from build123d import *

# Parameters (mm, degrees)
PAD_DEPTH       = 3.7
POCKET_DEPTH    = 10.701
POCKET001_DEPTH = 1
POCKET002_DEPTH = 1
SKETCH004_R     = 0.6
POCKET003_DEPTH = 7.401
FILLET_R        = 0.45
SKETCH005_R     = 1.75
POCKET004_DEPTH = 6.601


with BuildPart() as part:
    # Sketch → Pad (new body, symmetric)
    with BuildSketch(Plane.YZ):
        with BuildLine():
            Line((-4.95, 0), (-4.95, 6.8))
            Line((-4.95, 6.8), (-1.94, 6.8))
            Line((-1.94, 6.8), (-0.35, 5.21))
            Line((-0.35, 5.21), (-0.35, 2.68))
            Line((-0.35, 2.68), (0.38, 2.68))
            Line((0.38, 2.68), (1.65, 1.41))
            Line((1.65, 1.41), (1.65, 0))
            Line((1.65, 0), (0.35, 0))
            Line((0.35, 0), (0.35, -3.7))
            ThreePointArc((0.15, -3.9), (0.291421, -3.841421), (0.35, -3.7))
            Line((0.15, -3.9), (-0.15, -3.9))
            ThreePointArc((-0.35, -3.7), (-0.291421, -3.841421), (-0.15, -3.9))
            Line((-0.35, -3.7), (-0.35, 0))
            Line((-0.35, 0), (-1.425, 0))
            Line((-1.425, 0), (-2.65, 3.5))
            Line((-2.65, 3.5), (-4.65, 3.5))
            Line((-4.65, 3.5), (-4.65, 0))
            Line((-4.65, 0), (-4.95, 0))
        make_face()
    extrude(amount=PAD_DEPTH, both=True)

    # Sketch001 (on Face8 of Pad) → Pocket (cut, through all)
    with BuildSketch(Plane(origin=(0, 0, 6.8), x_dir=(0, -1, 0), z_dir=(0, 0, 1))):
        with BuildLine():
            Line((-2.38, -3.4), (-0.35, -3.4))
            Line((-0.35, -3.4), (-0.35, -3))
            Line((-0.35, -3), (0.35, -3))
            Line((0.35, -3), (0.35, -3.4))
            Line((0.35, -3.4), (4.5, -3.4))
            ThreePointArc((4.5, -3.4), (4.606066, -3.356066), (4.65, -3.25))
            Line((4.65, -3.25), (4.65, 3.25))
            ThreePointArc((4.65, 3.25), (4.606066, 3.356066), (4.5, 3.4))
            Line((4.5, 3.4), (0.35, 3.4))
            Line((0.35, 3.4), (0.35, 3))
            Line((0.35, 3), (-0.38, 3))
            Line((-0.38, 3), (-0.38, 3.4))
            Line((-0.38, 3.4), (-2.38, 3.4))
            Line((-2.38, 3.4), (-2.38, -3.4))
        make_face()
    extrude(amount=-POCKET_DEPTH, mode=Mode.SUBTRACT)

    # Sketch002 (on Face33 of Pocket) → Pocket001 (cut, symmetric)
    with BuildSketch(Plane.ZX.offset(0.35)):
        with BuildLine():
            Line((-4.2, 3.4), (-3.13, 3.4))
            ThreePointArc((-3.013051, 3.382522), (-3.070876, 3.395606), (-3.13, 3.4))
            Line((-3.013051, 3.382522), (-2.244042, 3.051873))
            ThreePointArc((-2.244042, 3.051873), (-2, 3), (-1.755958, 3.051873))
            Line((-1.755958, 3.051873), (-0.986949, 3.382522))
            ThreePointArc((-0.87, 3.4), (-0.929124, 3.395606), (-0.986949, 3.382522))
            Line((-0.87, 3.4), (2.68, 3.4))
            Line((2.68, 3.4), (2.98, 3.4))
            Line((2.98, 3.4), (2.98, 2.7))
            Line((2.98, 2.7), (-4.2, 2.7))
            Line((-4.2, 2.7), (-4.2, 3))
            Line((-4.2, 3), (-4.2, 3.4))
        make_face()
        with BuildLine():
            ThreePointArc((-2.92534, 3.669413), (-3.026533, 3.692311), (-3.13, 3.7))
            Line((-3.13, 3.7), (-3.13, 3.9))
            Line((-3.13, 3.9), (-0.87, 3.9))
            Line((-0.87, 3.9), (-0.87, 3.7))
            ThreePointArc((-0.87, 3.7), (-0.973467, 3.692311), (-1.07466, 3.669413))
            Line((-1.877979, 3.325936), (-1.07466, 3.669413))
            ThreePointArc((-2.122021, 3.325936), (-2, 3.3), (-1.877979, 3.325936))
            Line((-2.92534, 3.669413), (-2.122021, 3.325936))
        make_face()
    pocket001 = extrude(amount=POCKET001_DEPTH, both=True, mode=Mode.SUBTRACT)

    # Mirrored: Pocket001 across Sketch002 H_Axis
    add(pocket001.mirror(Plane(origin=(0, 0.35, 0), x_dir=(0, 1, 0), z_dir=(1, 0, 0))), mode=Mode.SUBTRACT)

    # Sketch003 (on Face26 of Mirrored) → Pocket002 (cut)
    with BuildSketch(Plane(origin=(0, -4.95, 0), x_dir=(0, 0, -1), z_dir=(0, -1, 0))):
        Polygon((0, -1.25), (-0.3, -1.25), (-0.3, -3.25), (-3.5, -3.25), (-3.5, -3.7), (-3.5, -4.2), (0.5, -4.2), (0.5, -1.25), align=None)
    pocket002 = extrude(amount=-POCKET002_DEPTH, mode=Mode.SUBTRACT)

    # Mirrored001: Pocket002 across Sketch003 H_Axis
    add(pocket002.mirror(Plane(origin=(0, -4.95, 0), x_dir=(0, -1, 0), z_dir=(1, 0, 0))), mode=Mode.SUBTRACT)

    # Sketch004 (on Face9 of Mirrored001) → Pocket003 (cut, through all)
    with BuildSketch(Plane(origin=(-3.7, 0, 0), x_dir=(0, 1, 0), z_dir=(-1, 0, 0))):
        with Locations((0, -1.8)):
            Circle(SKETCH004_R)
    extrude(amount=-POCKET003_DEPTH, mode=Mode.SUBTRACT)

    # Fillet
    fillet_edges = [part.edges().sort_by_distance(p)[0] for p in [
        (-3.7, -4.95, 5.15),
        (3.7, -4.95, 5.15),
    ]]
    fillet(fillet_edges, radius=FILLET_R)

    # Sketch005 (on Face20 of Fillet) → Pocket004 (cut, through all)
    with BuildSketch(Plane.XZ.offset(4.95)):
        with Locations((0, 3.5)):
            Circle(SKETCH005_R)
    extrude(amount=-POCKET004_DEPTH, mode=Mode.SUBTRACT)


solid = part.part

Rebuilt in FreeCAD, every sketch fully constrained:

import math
import FreeCAD as App
import Part
import Sketcher
Q = App.Units.Quantity


def edges_at(feature, points):
    """Names of the edges that pass closest to the given points."""
    edges = feature.Shape.Edges
    near = lambda p: min(range(len(edges)), key=lambda i: edges[i].distToShape(Part.Vertex(*p))[0])
    return sorted({f"Edge{near(p) + 1}" for p in points})


def add_polygon(sketch, points):
    """Adds a closed chain of lines whose ends are joined by coincident constraints."""
    first, n = sketch.GeometryCount, len(points)
    for a, b in zip(points, points[1:] + points[:1]):
        sketch.addGeometry(Part.LineSegment(App.Vector(*a, 0), App.Vector(*b, 0)), False)
    for i in range(n):
        sketch.addConstraint(Sketcher.Constraint("Coincident", first + i, 2, first + (i + 1) % n, 1))

doc = App.newDocument("Part")
body = doc.addObject("PartDesign::Body", "Body")

# Sketch on YZ plane
sketch1 = doc.addObject("Sketcher::SketchObject", "Sketch")
body.addObject(sketch1)
sketch1.AttachmentSupport = (doc.YZ_Plane, [""])
sketch1.MapMode = "FlatFace"
sketch1.addGeometry([
    Part.LineSegment(App.Vector(-4.95, 6.8, 0), App.Vector(-4.95, 0, 0)),  # 0
    Part.LineSegment(App.Vector(-4.95, 0, 0), App.Vector(-4.65, 0, 0)),  # 1
    Part.LineSegment(App.Vector(-4.65, 0, 0), App.Vector(-4.65, 3.5, 0)),  # 2
    Part.LineSegment(App.Vector(-4.65, 3.5, 0), App.Vector(-2.65, 3.5, 0)),  # 3
    Part.LineSegment(App.Vector(-2.65, 3.5, 0), App.Vector(-1.425, 0, 0)),  # 4
    Part.LineSegment(App.Vector(-1.425, 0, 0), App.Vector(-0.35, 0, 0)),  # 5
    Part.LineSegment(App.Vector(-0.35, 0, 0), App.Vector(-0.35, -3.7, 0)),  # 6
    Part.ArcOfCircle(Part.Circle(App.Vector(-0.149999, -3.699999, 0), App.Vector(0, 0, 1), 0.200001), math.radians(-179.999652), math.radians(-90.000348)),  # 7
    Part.LineSegment(App.Vector(-0.15, -3.9, 0), App.Vector(0.15, -3.9, 0)),  # 8
    Part.ArcOfCircle(Part.Circle(App.Vector(0.149999, -3.699999, 0), App.Vector(0, 0, 1), 0.200001), math.radians(-89.999652), math.radians(-0.000348)),  # 9
    Part.LineSegment(App.Vector(0.35, -3.7, 0), App.Vector(0.35, 0, 0)),  # 10
    Part.LineSegment(App.Vector(0.35, 0, 0), App.Vector(1.65, 0, 0)),  # 11
    Part.LineSegment(App.Vector(1.65, 0, 0), App.Vector(1.65, 1.41, 0)),  # 12
    Part.LineSegment(App.Vector(1.65, 1.41, 0), App.Vector(0.38, 2.68, 0)),  # 13
    Part.LineSegment(App.Vector(0.38, 2.68, 0), App.Vector(-0.35, 2.68, 0)),  # 14
    Part.LineSegment(App.Vector(-0.35, 2.68, 0), App.Vector(-0.35, 5.21, 0)),  # 15
    Part.LineSegment(App.Vector(-0.35, 5.21, 0), App.Vector(-1.94, 6.8, 0)),  # 16
    Part.LineSegment(App.Vector(-1.94, 6.8, 0), App.Vector(-4.95, 6.8, 0)),  # 17
], False)
sketch1.addConstraint([
    Sketcher.Constraint("Coincident", 0, 2, 1, 1),
    Sketcher.Constraint("Coincident", 1, 2, 2, 1),
    Sketcher.Constraint("Coincident", 2, 2, 3, 1),
    Sketcher.Constraint("Coincident", 3, 2, 4, 1),
    Sketcher.Constraint("Coincident", 4, 2, 5, 1),
    Sketcher.Constraint("Coincident", 5, 2, 6, 1),
    Sketcher.Constraint("Coincident", 6, 2, 7, 1),
    Sketcher.Constraint("Coincident", 7, 2, 8, 1),
    Sketcher.Constraint("Coincident", 8, 2, 9, 1),
    Sketcher.Constraint("Coincident", 9, 2, 10, 1),
    Sketcher.Constraint("Coincident", 10, 2, 11, 1),
    Sketcher.Constraint("Coincident", 11, 2, 12, 1),
    Sketcher.Constraint("Coincident", 12, 2, 13, 1),
    Sketcher.Constraint("Coincident", 13, 2, 14, 1),
    Sketcher.Constraint("Coincident", 14, 2, 15, 1),
    Sketcher.Constraint("Coincident", 15, 2, 16, 1),
    Sketcher.Constraint("Coincident", 16, 2, 17, 1),
    Sketcher.Constraint("Coincident", 17, 2, 0, 1),
    Sketcher.Constraint("Vertical", 0),
    Sketcher.Constraint("Horizontal", 1),
    Sketcher.Constraint("Vertical", 2),
    Sketcher.Constraint("Horizontal", 3),
    Sketcher.Constraint("Horizontal", 5),
    Sketcher.Constraint("Vertical", 6),
    Sketcher.Constraint("Horizontal", 8),
    Sketcher.Constraint("Vertical", 10),
    Sketcher.Constraint("Horizontal", 11),
    Sketcher.Constraint("Vertical", 12),
    Sketcher.Constraint("Horizontal", 14),
    Sketcher.Constraint("Vertical", 15),
    Sketcher.Constraint("Horizontal", 17),
    Sketcher.Constraint("Equal", 7, 9),
    Sketcher.Constraint("Symmetric", 5, 2, 10, 2, -1, 1),
    Sketcher.Constraint("PointOnObject", 0, 2, -1),
    Sketcher.Constraint("PointOnObject", 4, 2, -1),
    Sketcher.Constraint("Parallel", 13, 16),
    Sketcher.Constraint("Horizontal", 9, 3, 6, 2),
    Sketcher.Constraint("Horizontal", 6, 2, 9, 2),
    Sketcher.Constraint("Vertical", 9, 3, 8, 2),
    Sketcher.Constraint("Vertical", 6, 2, 14, 2),
    Sketcher.Constraint("Equal", 1, 8),
    Sketcher.Constraint("Radius", 7, 0.200001),
    Sketcher.Constraint("DistanceX", 3, 1, 3, 2, 2.0),
    Sketcher.Constraint("Angle", 13, Q("135 deg")),
    Sketcher.Constraint("DistanceX", 1, 1, 1, 2, 0.3),
    Sketcher.Constraint("DistanceX", 11, 1, 11, 2, 1.3),
    Sketcher.Constraint("DistanceY", 0, 2, 0, 1, 6.8),
    Sketcher.Constraint("DistanceY", 2, 1, 2, 2, 3.5),
    Sketcher.Constraint("DistanceY", 6, 2, 6, 1, 3.7),
    Sketcher.Constraint("DistanceX", 5, 2, 11, 2, 2.0),
    Sketcher.Constraint("DistanceX", 14, 2, 14, 1, 0.73),
    Sketcher.Constraint("DistanceX", 17, 2, 17, 1, 3.01),
    Sketcher.Constraint("DistanceY", 12, 1, 12, 2, 1.41),
    Sketcher.Constraint("DistanceY", 15, 1, 15, 2, 2.53),
    Sketcher.Constraint("DistanceX", 5, 1, 5, 2, 1.075),
])
pad1 = doc.addObject("PartDesign::Pad", "Pad")
body.addObject(pad1)
pad1.Profile = sketch1
pad1.Length = 7.4
pad1.Midplane = True

# Sketch on XY plane
sketch2 = doc.addObject("Sketcher::SketchObject", "Sketch001")
body.addObject(sketch2)
sketch2.AttachmentSupport = (doc.XY_Plane, [""])
sketch2.MapMode = "FlatFace"
sketch2.AttachmentOffset = App.Placement(App.Vector(0, 0, 6.8), App.Rotation())
sketch2.addGeometry([
    Part.LineSegment(App.Vector(-3.4, 2.38, 0), App.Vector(-3.4, 0.35, 0)),  # 0
    Part.LineSegment(App.Vector(-3.4, 0.35, 0), App.Vector(-3, 0.35, 0)),  # 1
    Part.LineSegment(App.Vector(-3, 0.35, 0), App.Vector(-3, -0.35, 0)),  # 2
    Part.LineSegment(App.Vector(-3, -0.35, 0), App.Vector(-3.4, -0.35, 0)),  # 3
    Part.LineSegment(App.Vector(-3.4, -0.35, 0), App.Vector(-3.4, -4.5, 0)),  # 4
    Part.ArcOfCircle(Part.Circle(App.Vector(-3.25, -4.5, 0), App.Vector(0, 0, 1), 0.15), math.radians(-179.999977), math.radians(-90.000023)),  # 5
    Part.LineSegment(App.Vector(-3.25, -4.65, 0), App.Vector(3.25, -4.65, 0)),  # 6
    Part.ArcOfCircle(Part.Circle(App.Vector(3.25, -4.5, 0), App.Vector(0, 0, 1), 0.15), math.radians(-89.999977), math.radians(-0.000023)),  # 7
    Part.LineSegment(App.Vector(3.4, -4.5, 0), App.Vector(3.4, -0.35, 0)),  # 8
    Part.LineSegment(App.Vector(3.4, -0.35, 0), App.Vector(3, -0.35, 0)),  # 9
    Part.LineSegment(App.Vector(3, -0.35, 0), App.Vector(3, 0.38, 0)),  # 10
    Part.LineSegment(App.Vector(3, 0.38, 0), App.Vector(3.4, 0.38, 0)),  # 11
    Part.LineSegment(App.Vector(3.4, 0.38, 0), App.Vector(3.4, 2.38, 0)),  # 12
    Part.LineSegment(App.Vector(3.4, 2.38, 0), App.Vector(-3.4, 2.38, 0)),  # 13
], False)
sketch2.addConstraint([
    Sketcher.Constraint("Coincident", 0, 2, 1, 1),
    Sketcher.Constraint("Coincident", 1, 2, 2, 1),
    Sketcher.Constraint("Coincident", 2, 2, 3, 1),
    Sketcher.Constraint("Coincident", 3, 2, 4, 1),
    Sketcher.Constraint("Tangent", 4, 2, 5, 1),
    Sketcher.Constraint("Tangent", 5, 2, 6, 1),
    Sketcher.Constraint("Tangent", 6, 2, 7, 1),
    Sketcher.Constraint("Tangent", 7, 2, 8, 1),
    Sketcher.Constraint("Coincident", 8, 2, 9, 1),
    Sketcher.Constraint("Coincident", 9, 2, 10, 1),
    Sketcher.Constraint("Coincident", 10, 2, 11, 1),
    Sketcher.Constraint("Coincident", 11, 2, 12, 1),
    Sketcher.Constraint("Coincident", 12, 2, 13, 1),
    Sketcher.Constraint("Coincident", 13, 2, 0, 1),
    Sketcher.Constraint("Vertical", 0),
    Sketcher.Constraint("Horizontal", 1),
    Sketcher.Constraint("Vertical", 2),
    Sketcher.Constraint("Horizontal", 3),
    Sketcher.Constraint("Vertical", 4),
    Sketcher.Constraint("Horizontal", 6),
    Sketcher.Constraint("Vertical", 8),
    Sketcher.Constraint("Horizontal", 9),
    Sketcher.Constraint("Vertical", 10),
    Sketcher.Constraint("Horizontal", 11),
    Sketcher.Constraint("Vertical", 12),
    Sketcher.Constraint("Horizontal", 13),
    Sketcher.Constraint("Equal", 5, 7),
    Sketcher.Constraint("Symmetric", 0, 2, 8, 2, -1, 1),
    Sketcher.Constraint("Symmetric", 3, 2, 8, 2, -2),
    Sketcher.Constraint("Vertical", 8, 2, 11, 2),
    Sketcher.Constraint("Equal", 3, 9),
    Sketcher.Constraint("DistanceY", 12, 1, 12, 2, 2.0),
    Sketcher.Constraint("Radius", 5, 0.15),
    Sketcher.Constraint("DistanceX", 1, 1, 1, 2, 0.4),
    Sketcher.Constraint("DistanceX", 6, 1, 6, 2, 6.5),
    Sketcher.Constraint("DistanceY", 2, 2, 2, 1, 0.7),
    Sketcher.Constraint("DistanceY", 5, 2, 0, 2, 5.0),
    Sketcher.Constraint("DistanceY", 0, 2, 0, 1, 2.03),
])
pocket1 = doc.addObject("PartDesign::Pocket", "Pocket")
body.addObject(pocket1)
pocket1.Profile = sketch2
pocket1.Type = "ThroughAll"

# Sketch on XZ plane
sketch3 = doc.addObject("Sketcher::SketchObject", "Sketch002")
body.addObject(sketch3)
sketch3.AttachmentSupport = (doc.XZ_Plane, [""])
sketch3.MapMode = "FlatFace"
sketch3.AttachmentOffset = App.Placement(App.Vector(0, 0, -0.35), App.Rotation())
sketch3.addGeometry([
    Part.LineSegment(App.Vector(3.4, -3.13, 0), App.Vector(3.4, -4.2, 0)),  # 0
    Part.LineSegment(App.Vector(3.4, -4.2, 0), App.Vector(2.7, -4.2, 0)),  # 1
    Part.LineSegment(App.Vector(2.7, -4.2, 0), App.Vector(2.7, 2.98, 0)),  # 2
    Part.LineSegment(App.Vector(2.7, 2.98, 0), App.Vector(3.4, 2.98, 0)),  # 3
    Part.LineSegment(App.Vector(3.4, 2.98, 0), App.Vector(3.4, -0.87, 0)),  # 4
    Part.ArcOfCircle(Part.Circle(App.Vector(2.999964, -0.869995, 0), App.Vector(0, 0, 1), 0.400036), math.radians(-16.999179), math.radians(-0.000681)),  # 5
    Part.LineSegment(App.Vector(3.382522, -0.986949, 0), App.Vector(3.051873, -1.755958, 0)),  # 6
    Part.ArcOfCircle(Part.Circle(App.Vector(3.599997, -2, 0), App.Vector(0, 0, 1), 0.599997), math.radians(155.999878), math.radians(204.000122)),  # 7
    Part.LineSegment(App.Vector(3.051873, -2.244042, 0), App.Vector(3.382522, -3.013051, 0)),  # 8
    Part.ArcOfCircle(Part.Circle(App.Vector(2.999964, -3.130005, 0), App.Vector(0, 0, 1), 0.400036), math.radians(0.000681), math.radians(16.999179)),  # 9
    Part.ArcOfCircle(Part.Circle(App.Vector(3.000013, -3.129999, 0), App.Vector(0, 0, 1), 0.699987), math.radians(-0.000056), math.radians(17.000252)),  # 10
    Part.LineSegment(App.Vector(3.669413, -2.92534, 0), App.Vector(3.325936, -2.122021, 0)),  # 11
    Part.ArcOfCircle(Part.Circle(App.Vector(3.600004, -2, 0), App.Vector(0, 0, 1), 0.300004), math.radians(156.000327), math.radians(203.999673)),  # 12
    Part.LineSegment(App.Vector(3.325936, -1.877979, 0), App.Vector(3.669413, -1.07466, 0)),  # 13
    Part.ArcOfCircle(Part.Circle(App.Vector(3.000013, -0.870001, 0), App.Vector(0, 0, 1), 0.699987), math.radians(-17.000252), math.radians(0.000056)),  # 14
    Part.LineSegment(App.Vector(3.7, -0.87, 0), App.Vector(3.9, -0.87, 0)),  # 15
    Part.LineSegment(App.Vector(3.9, -0.87, 0), App.Vector(3.9, -3.13, 0)),  # 16
    Part.LineSegment(App.Vector(3.9, -3.13, 0), App.Vector(3.7, -3.13, 0)),  # 17
], False)
sketch3.addConstraint([
    Sketcher.Constraint("Coincident", 0, 2, 1, 1),
    Sketcher.Constraint("Coincident", 1, 2, 2, 1),
    Sketcher.Constraint("Coincident", 2, 2, 3, 1),
    Sketcher.Constraint("Coincident", 3, 2, 4, 1),
    Sketcher.Constraint("Coincident", 4, 2, 5, 2),
    Sketcher.Constraint("Coincident", 5, 1, 6, 1),
    Sketcher.Constraint("Coincident", 6, 2, 7, 1),
    Sketcher.Constraint("Coincident", 7, 2, 8, 1),
    Sketcher.Constraint("Coincident", 8, 2, 9, 2),
    Sketcher.Constraint("Coincident", 9, 1, 0, 1),
    Sketcher.Constraint("Coincident", 10, 2, 11, 1),
    Sketcher.Constraint("Coincident", 11, 2, 12, 2),
    Sketcher.Constraint("Coincident", 12, 1, 13, 1),
    Sketcher.Constraint("Coincident", 13, 2, 14, 1),
    Sketcher.Constraint("Coincident", 14, 2, 15, 1),
    Sketcher.Constraint("Coincident", 15, 2, 16, 1),
    Sketcher.Constraint("Coincident", 16, 2, 17, 1),
    Sketcher.Constraint("Coincident", 17, 2, 10, 1),
    Sketcher.Constraint("Vertical", 0),
    Sketcher.Constraint("Horizontal", 1),
    Sketcher.Constraint("Vertical", 2),
    Sketcher.Constraint("Horizontal", 3),
    Sketcher.Constraint("Vertical", 4),
    Sketcher.Constraint("Horizontal", 15),
    Sketcher.Constraint("Vertical", 16),
    Sketcher.Constraint("Horizontal", 17),
    Sketcher.Constraint("Coincident", 12, 3, 7, 3),
    Sketcher.Constraint("Equal", 5, 9),
    Sketcher.Constraint("Equal", 10, 14),
    Sketcher.Constraint("Horizontal", 14, 3, 4, 2),
    Sketcher.Constraint("Horizontal", 10, 3, 9, 1),
    Sketcher.Constraint("Horizontal", 4, 2, 14, 2),
    Sketcher.Constraint("Horizontal", 9, 1, 16, 2),
    Sketcher.Constraint("Vertical", 5, 3, 9, 3),
    Sketcher.Constraint("Vertical", 10, 3, 14, 3),
    Sketcher.Constraint("Vertical", 6, 2, 7, 2),
    Sketcher.Constraint("Vertical", 5, 1, 8, 2),
    Sketcher.Constraint("Vertical", 11, 2, 12, 1),
    Sketcher.Constraint("Vertical", 10, 2, 13, 2),
    Sketcher.Constraint("Equal", 6, 8),
    Sketcher.Constraint("Equal", 11, 13),
    Sketcher.Constraint("DistanceX", 1, 2, 1, 1, 0.7),
    Sketcher.Constraint("DistanceX", 15, 1, 15, 2, 0.2),
    Sketcher.Constraint("DistanceY", 7, 3, -1, 1, 2.0),
    Sketcher.Constraint("DistanceY", 0, 2, 0, 1, 1.07),
    Sketcher.Constraint("DistanceY", 2, 1, 2, 2, 7.18),
    Sketcher.Constraint("DistanceY", 4, 2, 4, 1, 3.85),
    Sketcher.Constraint("DistanceX", -1, 1, 0, 2, 3.4),
    Sketcher.Constraint("DistanceX", -1, 1, 14, 2, 3.7),
    Sketcher.Constraint("Radius", 5, 0.400036),
    Sketcher.Constraint("Radius", 7, 0.599997),
    Sketcher.Constraint("Radius", 10, 0.699987),
    Sketcher.Constraint("Radius", 12, 0.300004),
    Sketcher.Constraint("DistanceX", 10, 3, 10, 2, 0.6694),
    Sketcher.Constraint("DistanceY", 10, 2, 7, 2, 0.681298),
    Sketcher.Constraint("Distance", 6, 0.83708),
    Sketcher.Constraint("Distance", 11, 0.873669),
    Sketcher.Constraint("DistanceY", 5, 1, -1, 1, 0.986949),
    Sketcher.Constraint("DistanceX", -1, 1, 8, 2, 3.382522),
])
pocket2 = doc.addObject("PartDesign::Pocket", "Pocket001")
body.addObject(pocket2)
pocket2.Profile = sketch3
pocket2.Length = 2
pocket2.Midplane = True
doc.recompute()

mirrored = doc.addObject("PartDesign::Mirrored", "Mirrored")
body.addObject(mirrored)
mirrored.Originals = [pocket2]
mirrored.MirrorPlane = (doc.YZ_Plane, [""])
body.Tip = mirrored

# Sketch on XZ plane
sketch4 = doc.addObject("Sketcher::SketchObject", "Sketch003")
body.addObject(sketch4)
sketch4.AttachmentSupport = (doc.XZ_Plane, [""])
sketch4.MapMode = "FlatFace"
sketch4.AttachmentOffset = App.Placement(App.Vector(0, 0, 4.95), App.Rotation())
add_polygon(sketch4, [(-1.25, 0.3), (-3.25, 0.3), (-3.25, 3.5), (-4.2, 3.5), (-4.2, -0.5), (-1.25, -0.5)])  # lines 0-5
sketch4.addConstraint([
    Sketcher.Constraint("Horizontal", 0),
    Sketcher.Constraint("Vertical", 1),
    Sketcher.Constraint("Horizontal", 2),
    Sketcher.Constraint("Vertical", 3),
    Sketcher.Constraint("Horizontal", 4),
    Sketcher.Constraint("Vertical", 5),
    Sketcher.Constraint("DistanceX", 0, 2, 0, 1, 2.0),
    Sketcher.Constraint("DistanceY", 3, 2, 3, 1, 4.0),
    Sketcher.Constraint("DistanceY", 1, 1, 1, 2, 3.2),
    Sketcher.Constraint("DistanceX", 2, 2, 2, 1, 0.95),
    Sketcher.Constraint("DistanceY", -1, 1, 0, 2, 0.3),
    Sketcher.Constraint("DistanceX", 2, 2, -1, 1, 4.2),
])
pocket3 = doc.addObject("PartDesign::Pocket", "Pocket002")
body.addObject(pocket3)
pocket3.Profile = sketch4
pocket3.Length = 1
doc.recompute()

mirrored2 = doc.addObject("PartDesign::Mirrored", "Mirrored001")
body.addObject(mirrored2)
mirrored2.Originals = [pocket3]
mirrored2.MirrorPlane = (doc.YZ_Plane, [""])
body.Tip = mirrored2

# Sketch on YZ plane
sketch5 = doc.addObject("Sketcher::SketchObject", "Sketch004")
body.addObject(sketch5)
sketch5.AttachmentSupport = (doc.YZ_Plane, [""])
sketch5.MapMode = "FlatFace"
sketch5.AttachmentOffset = App.Placement(App.Vector(0, 0, -3.7), App.Rotation())
sketch5.addGeometry(Part.Circle(App.Vector(0, 1.8, 0), App.Vector(0, 0, 1), 0.6), False)
sketch5.addConstraint([
    Sketcher.Constraint("PointOnObject", 0, 3, -2),
    Sketcher.Constraint("Diameter", 0, 1.2),
    Sketcher.Constraint("DistanceY", -1, 1, 0, 3, 1.8),
])
pocket4 = doc.addObject("PartDesign::Pocket", "Pocket003")
body.addObject(pocket4)
pocket4.Profile = sketch5
pocket4.Type = "ThroughAll"
pocket4.Reversed = True
doc.recompute()

fillet = doc.addObject("PartDesign::Fillet", "Fillet")
body.addObject(fillet)
fillet.Base = (pocket4, edges_at(pocket4, [(-3.7, -4.95, 5.15), (3.7, -4.95, 5.15)]))
fillet.Radius = 0.45

# Sketch on XZ plane
sketch6 = doc.addObject("Sketcher::SketchObject", "Sketch005")
body.addObject(sketch6)
sketch6.AttachmentSupport = (doc.XZ_Plane, [""])
sketch6.MapMode = "FlatFace"
sketch6.AttachmentOffset = App.Placement(App.Vector(0, 0, 4.95), App.Rotation())
sketch6.addGeometry(Part.Circle(App.Vector(0, 3.5, 0), App.Vector(0, 0, 1), 1.75), False)
sketch6.addConstraint([
    Sketcher.Constraint("PointOnObject", 0, 3, -2),
    Sketcher.Constraint("Diameter", 0, 3.5),
    Sketcher.Constraint("DistanceY", -1, 1, 0, 3, 3.5),
])
pocket5 = doc.addObject("PartDesign::Pocket", "Pocket004")
body.addObject(pocket5)
pocket5.Profile = sketch6
pocket5.Type = "ThroughAll"

doc.recompute()
